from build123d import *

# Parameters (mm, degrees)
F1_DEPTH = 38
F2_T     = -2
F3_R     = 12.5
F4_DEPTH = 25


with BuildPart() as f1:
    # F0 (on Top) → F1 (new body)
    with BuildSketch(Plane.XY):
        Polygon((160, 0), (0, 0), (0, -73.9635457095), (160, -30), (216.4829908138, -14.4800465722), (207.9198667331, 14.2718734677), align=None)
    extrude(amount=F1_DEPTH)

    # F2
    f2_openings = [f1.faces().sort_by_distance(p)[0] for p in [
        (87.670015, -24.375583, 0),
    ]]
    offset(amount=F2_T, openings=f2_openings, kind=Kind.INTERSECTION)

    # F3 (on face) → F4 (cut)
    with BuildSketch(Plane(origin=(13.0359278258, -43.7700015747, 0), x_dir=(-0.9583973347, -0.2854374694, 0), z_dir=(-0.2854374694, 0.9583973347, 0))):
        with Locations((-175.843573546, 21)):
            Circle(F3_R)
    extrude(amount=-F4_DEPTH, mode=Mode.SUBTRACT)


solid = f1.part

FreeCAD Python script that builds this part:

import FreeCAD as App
import Part
import Sketcher
Q = App.Units.Quantity


def faces_at(feature, points):
    """Names of the faces that lie closest to the given points."""
    faces = feature.Shape.Faces
    near = lambda p: min(range(len(faces)), key=lambda i: faces[i].distToShape(Part.Vertex(*p))[0])
    return sorted({f"Face{near(p) + 1}" for p in points})


def add_polygon(sketch, points):
    """Adds a closed chain of lines whose ends are joined by coincident constraints."""
    first, n = sketch.GeometryCount, len(points)
    for a, b in zip(points, points[1:] + points[:1]):
        sketch.addGeometry(Part.LineSegment(App.Vector(*a, 0), App.Vector(*b, 0)), False)
    for i in range(n):
        sketch.addConstraint(Sketcher.Constraint("Coincident", first + i, 2, first + (i + 1) % n, 1))

doc = App.newDocument("Part")
body = doc.addObject("PartDesign::Body", "Body")

# Sketch on XY plane
sketch1 = body.newObject("Sketcher::SketchObject", "Sketch")
sketch1.AttachmentSupport = (doc.getObject("XY_Plane"), [""])
sketch1.MapMode = "FlatFace"
add_polygon(sketch1, [(160, 0), (0, 0), (0, -74), (216, -14), (208, 14)])  # lines 0-4
sketch1.addConstraint([
    Sketcher.Constraint("Horizontal", 0),
    Sketcher.Constraint("Vertical", 1),
    Sketcher.Constraint("Coincident", 0, 2, -1, 1),
    Sketcher.Constraint("Perpendicular", 3, 4),
    Sketcher.Constraint("DistanceX", 0, 2, 0, 1, Q("160 mm")),
    Sketcher.Constraint("Distance", 3, Q("30 mm")),
    Sketcher.Constraint("Distance", 4, Q("50 mm")),
    Sketcher.Constraint("DistanceY", 1, 2, 2, 2, Q("59.483499 mm")),
    Sketcher.Constraint("DistanceY", 1, 2, 1, 1, Q("73.963546 mm")),
])
pad1 = body.newObject("PartDesign::Pad", "Pad")
pad1.Profile = sketch1
pad1.Length = 38
doc.recompute()

thickness = body.newObject("PartDesign::Thickness", "Thickness")
thickness.Base = (pad1, faces_at(pad1, [(108.241, -29.846, 0)]))
thickness.Value = 2
thickness.Reversed = True
thickness.Join = "Intersection"

# Sketch on an angled plane
sketch2 = body.newObject("Sketcher::SketchObject", "Sketch001")
sketch2.Placement = App.Placement(App.Vector(13.035928, -43.770002, 0), App.Rotation(App.Vector(-0.958397335, -0.285437469, 0), App.Vector(0, 0, 1), App.Vector(-0.285437469, 0.958397335, 0), "ZXY"))
sketch2.addGeometry(Part.Circle(App.Vector(-176, 21, 0), App.Vector(0, 0, 1), 12), False)
sketch2.addConstraint([
    Sketcher.Constraint("Diameter", 0, Q("25 mm")),
    Sketcher.Constraint("DistanceY", -1, 1, 0, 3, Q("21 mm")),
    Sketcher.Constraint("DistanceX", 0, 3, -1, 1, Q("175.843574 mm")),
])
pocket1 = body.newObject("PartDesign::Pocket", "Pocket")
pocket1.Profile = sketch2
pocket1.Length = 25

doc.recompute()
